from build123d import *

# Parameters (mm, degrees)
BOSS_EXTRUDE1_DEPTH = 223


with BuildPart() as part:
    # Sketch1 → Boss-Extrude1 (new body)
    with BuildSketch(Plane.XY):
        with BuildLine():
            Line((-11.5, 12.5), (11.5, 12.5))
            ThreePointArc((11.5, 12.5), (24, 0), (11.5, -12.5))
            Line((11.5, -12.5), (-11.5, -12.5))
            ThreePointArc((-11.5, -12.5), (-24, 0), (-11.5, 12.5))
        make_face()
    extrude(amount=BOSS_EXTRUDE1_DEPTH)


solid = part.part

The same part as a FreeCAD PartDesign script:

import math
import FreeCAD as App
import Part
import Sketcher

V = App.Vector

doc = App.newDocument("Part")
body = doc.addObject("PartDesign::Body", "Body")

# Sketch on XY plane
sketch1 = body.newObject("Sketcher::SketchObject", "Sketch")
sketch1.AttachmentSupport = (doc.getObject("XY_Plane"), [""])
sketch1.MapMode = "FlatFace"
sketch1.addGeometry(Part.LineSegment(V(12, 12, 0), V(-12, 12, 0)), False)
sketch1.addGeometry(Part.ArcOfCircle(Part.Circle(V(-12, 0, 0), V(0, 0, 1), 12), math.radians(90), math.radians(270)), False)
sketch1.addGeometry(Part.LineSegment(V(-12, -12, 0), V(12, -12, 0)), False)
sketch1.addGeometry(Part.ArcOfCircle(Part.Circle(V(12, 0, 0), V(0, 0, 1), 12), math.radians(-90), math.radians(90)), False)
sketch1.addConstraint(Sketcher.Constraint("Tangent", 0, 2, 1, 1))
sketch1.addConstraint(Sketcher.Constraint("Tangent", 1, 2, 2, 1))
sketch1.addConstraint(Sketcher.Constraint("Tangent", 2, 2, 3, 1))
sketch1.addConstraint(Sketcher.Constraint("Tangent", 3, 2, 0, 1))
sketch1.addConstraint(Sketcher.Constraint("Horizontal", 0))
sketch1.addConstraint(Sketcher.Constraint("Horizontal", 2))
sketch1.addConstraint(Sketcher.Constraint("Symmetric", 1, 3, 3, 3, -1, 1))
sketch1.addConstraint(Sketcher.Constraint("Radius", 1, 12.5))
sketch1.addConstraint(Sketcher.Constraint("DistanceX", 0, 2, 0, 1, 23.0))
pad1 = body.newObject("PartDesign::Pad", "Pad")
pad1.Profile = sketch1
pad1.Length = 223

doc.recompute()
